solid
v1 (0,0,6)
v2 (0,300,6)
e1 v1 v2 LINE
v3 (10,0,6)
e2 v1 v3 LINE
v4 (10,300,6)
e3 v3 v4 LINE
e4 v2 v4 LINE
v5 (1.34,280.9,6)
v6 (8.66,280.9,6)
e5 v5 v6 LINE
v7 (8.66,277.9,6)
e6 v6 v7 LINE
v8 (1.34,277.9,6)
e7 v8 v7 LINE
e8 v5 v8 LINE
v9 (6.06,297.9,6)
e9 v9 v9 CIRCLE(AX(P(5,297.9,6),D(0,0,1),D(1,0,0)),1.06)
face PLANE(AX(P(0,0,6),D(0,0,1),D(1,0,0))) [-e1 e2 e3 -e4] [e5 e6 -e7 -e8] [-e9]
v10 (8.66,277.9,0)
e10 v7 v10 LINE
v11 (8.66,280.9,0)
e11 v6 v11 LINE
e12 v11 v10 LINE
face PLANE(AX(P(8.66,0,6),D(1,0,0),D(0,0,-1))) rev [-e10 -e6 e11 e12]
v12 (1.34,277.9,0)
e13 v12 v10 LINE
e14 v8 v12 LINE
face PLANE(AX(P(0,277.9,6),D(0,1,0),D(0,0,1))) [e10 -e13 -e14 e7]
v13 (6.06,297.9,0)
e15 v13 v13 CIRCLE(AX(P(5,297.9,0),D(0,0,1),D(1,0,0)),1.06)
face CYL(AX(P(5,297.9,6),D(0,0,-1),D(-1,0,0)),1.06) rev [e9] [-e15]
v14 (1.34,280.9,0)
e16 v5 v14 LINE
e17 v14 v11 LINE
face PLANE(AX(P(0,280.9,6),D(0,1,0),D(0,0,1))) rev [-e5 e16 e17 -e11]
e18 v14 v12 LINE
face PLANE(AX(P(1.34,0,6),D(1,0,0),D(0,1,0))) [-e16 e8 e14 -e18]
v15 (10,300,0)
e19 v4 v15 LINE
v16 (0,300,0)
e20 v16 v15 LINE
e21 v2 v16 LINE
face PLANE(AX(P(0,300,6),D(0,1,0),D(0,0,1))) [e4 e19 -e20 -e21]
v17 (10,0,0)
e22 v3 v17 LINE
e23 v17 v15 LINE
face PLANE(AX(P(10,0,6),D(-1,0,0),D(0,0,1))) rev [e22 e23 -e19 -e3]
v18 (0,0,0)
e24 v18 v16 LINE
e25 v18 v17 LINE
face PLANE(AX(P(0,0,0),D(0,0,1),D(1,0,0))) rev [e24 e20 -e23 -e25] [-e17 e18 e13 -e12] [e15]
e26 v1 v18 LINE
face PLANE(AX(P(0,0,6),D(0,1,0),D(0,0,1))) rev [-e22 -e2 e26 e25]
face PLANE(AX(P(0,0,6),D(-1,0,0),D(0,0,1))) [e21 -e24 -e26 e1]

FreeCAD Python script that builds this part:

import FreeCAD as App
import Part
import Sketcher
from FreeCAD import Vector
Q = App.Units.Quantity


def add_polygon(sketch, points):
    """Adds a closed chain of lines whose ends are joined by coincident constraints."""
    first, n = sketch.GeometryCount, len(points)
    for a, b in zip(points, points[1:] + points[:1]):
        sketch.addGeometry(Part.LineSegment(App.Vector(*a, 0), App.Vector(*b, 0)), False)
    for i in range(n):
        sketch.addConstraint(Sketcher.Constraint("Coincident", first + i, 2, first + (i + 1) % n, 1))

doc = App.newDocument("Part")
params = doc.addObject("Spreadsheet::Sheet", "Params")
for row, (alias, value) in enumerate([
    ("sketch1_diameter", "2.12 mm"),
    ("sketch1_width", "10 mm"),
    ("sketch1_height", "300 mm"),
    ("sketch1_height2", "3 mm"),
    ("sketch1_width2", "7.32 mm"),
    ("pad1_length", "6 mm"),
], start=1):
    params.set(f"A{row}", alias)
    params.set(f"B{row}", "=" + value)
    params.setAlias(f"B{row}", alias)

body = doc.addObject("PartDesign::Body", "Body")

# Sketch on XY plane
sketch1 = body.newObject("Sketcher::SketchObject", "Sketch")
sketch1.AttachmentSupport = (doc.getObject("XY_Plane"), [""])
sketch1.MapMode = "FlatFace"
add_polygon(sketch1, [(0, 300), (0, 0), (10, 0), (10, 300)])  # lines 0-3
add_polygon(sketch1, [(8.7, 277.9), (1.3, 277.9), (1.3, 280.9), (8.7, 280.9)])  # lines 4-7
sketch1.addGeometry(Part.Circle(Vector(5, 297.9, 0), Vector(0, 0, 1), 1.1), False)  # 8
sketch1.addConstraint(Sketcher.Constraint("Vertical", 0))
sketch1.addConstraint(Sketcher.Constraint("Horizontal", 1))
sketch1.addConstraint(Sketcher.Constraint("Vertical", 2))
sketch1.addConstraint(Sketcher.Constraint("Horizontal", 3))
sketch1.addConstraint(Sketcher.Constraint("Horizontal", 4))
sketch1.addConstraint(Sketcher.Constraint("Vertical", 5))
sketch1.addConstraint(Sketcher.Constraint("Horizontal", 6))
sketch1.addConstraint(Sketcher.Constraint("Vertical", 7))
sketch1.addConstraint(Sketcher.Constraint("Coincident", 0, 2, -1, 1))
sketch1.addConstraint(Sketcher.Constraint("Diameter", 8, Q("2.12 mm")))
sketch1.addConstraint(Sketcher.Constraint("DistanceX", 1, 1, 1, 2, Q("10 mm")))
sketch1.addConstraint(Sketcher.Constraint("DistanceY", 0, 2, 0, 1, Q("300 mm")))
sketch1.addConstraint(Sketcher.Constraint("DistanceY", 5, 1, 5, 2, Q("3 mm")))
sketch1.addConstraint(Sketcher.Constraint("DistanceX", -1, 1, 8, 3, Q("5 mm")))
sketch1.addConstraint(Sketcher.Constraint("DistanceY", 4, 2, 8, 3, Q("20 mm")))
sketch1.addConstraint(Sketcher.Constraint("DistanceX", 4, 2, 4, 1, Q("7.32 mm")))
sketch1.addConstraint(Sketcher.Constraint("DistanceY", -1, 1, 8, 3, Q("297.9 mm")))
sketch1.addConstraint(Sketcher.Constraint("DistanceX", -1, 1, 4, 2, Q("1.34 mm")))
sketch1.setExpression("Constraints[17]", "Params.sketch1_diameter")
sketch1.setExpression("Constraints[18]", "Params.sketch1_width")
sketch1.setExpression("Constraints[19]", "Params.sketch1_height")
sketch1.setExpression("Constraints[20]", "Params.sketch1_height2")
sketch1.setExpression("Constraints[23]", "Params.sketch1_width2")
pad1 = body.newObject("PartDesign::Pad", "Pad")
pad1.Profile = sketch1
pad1.setExpression("Length", "Params.pad1_length")

doc.recompute()
